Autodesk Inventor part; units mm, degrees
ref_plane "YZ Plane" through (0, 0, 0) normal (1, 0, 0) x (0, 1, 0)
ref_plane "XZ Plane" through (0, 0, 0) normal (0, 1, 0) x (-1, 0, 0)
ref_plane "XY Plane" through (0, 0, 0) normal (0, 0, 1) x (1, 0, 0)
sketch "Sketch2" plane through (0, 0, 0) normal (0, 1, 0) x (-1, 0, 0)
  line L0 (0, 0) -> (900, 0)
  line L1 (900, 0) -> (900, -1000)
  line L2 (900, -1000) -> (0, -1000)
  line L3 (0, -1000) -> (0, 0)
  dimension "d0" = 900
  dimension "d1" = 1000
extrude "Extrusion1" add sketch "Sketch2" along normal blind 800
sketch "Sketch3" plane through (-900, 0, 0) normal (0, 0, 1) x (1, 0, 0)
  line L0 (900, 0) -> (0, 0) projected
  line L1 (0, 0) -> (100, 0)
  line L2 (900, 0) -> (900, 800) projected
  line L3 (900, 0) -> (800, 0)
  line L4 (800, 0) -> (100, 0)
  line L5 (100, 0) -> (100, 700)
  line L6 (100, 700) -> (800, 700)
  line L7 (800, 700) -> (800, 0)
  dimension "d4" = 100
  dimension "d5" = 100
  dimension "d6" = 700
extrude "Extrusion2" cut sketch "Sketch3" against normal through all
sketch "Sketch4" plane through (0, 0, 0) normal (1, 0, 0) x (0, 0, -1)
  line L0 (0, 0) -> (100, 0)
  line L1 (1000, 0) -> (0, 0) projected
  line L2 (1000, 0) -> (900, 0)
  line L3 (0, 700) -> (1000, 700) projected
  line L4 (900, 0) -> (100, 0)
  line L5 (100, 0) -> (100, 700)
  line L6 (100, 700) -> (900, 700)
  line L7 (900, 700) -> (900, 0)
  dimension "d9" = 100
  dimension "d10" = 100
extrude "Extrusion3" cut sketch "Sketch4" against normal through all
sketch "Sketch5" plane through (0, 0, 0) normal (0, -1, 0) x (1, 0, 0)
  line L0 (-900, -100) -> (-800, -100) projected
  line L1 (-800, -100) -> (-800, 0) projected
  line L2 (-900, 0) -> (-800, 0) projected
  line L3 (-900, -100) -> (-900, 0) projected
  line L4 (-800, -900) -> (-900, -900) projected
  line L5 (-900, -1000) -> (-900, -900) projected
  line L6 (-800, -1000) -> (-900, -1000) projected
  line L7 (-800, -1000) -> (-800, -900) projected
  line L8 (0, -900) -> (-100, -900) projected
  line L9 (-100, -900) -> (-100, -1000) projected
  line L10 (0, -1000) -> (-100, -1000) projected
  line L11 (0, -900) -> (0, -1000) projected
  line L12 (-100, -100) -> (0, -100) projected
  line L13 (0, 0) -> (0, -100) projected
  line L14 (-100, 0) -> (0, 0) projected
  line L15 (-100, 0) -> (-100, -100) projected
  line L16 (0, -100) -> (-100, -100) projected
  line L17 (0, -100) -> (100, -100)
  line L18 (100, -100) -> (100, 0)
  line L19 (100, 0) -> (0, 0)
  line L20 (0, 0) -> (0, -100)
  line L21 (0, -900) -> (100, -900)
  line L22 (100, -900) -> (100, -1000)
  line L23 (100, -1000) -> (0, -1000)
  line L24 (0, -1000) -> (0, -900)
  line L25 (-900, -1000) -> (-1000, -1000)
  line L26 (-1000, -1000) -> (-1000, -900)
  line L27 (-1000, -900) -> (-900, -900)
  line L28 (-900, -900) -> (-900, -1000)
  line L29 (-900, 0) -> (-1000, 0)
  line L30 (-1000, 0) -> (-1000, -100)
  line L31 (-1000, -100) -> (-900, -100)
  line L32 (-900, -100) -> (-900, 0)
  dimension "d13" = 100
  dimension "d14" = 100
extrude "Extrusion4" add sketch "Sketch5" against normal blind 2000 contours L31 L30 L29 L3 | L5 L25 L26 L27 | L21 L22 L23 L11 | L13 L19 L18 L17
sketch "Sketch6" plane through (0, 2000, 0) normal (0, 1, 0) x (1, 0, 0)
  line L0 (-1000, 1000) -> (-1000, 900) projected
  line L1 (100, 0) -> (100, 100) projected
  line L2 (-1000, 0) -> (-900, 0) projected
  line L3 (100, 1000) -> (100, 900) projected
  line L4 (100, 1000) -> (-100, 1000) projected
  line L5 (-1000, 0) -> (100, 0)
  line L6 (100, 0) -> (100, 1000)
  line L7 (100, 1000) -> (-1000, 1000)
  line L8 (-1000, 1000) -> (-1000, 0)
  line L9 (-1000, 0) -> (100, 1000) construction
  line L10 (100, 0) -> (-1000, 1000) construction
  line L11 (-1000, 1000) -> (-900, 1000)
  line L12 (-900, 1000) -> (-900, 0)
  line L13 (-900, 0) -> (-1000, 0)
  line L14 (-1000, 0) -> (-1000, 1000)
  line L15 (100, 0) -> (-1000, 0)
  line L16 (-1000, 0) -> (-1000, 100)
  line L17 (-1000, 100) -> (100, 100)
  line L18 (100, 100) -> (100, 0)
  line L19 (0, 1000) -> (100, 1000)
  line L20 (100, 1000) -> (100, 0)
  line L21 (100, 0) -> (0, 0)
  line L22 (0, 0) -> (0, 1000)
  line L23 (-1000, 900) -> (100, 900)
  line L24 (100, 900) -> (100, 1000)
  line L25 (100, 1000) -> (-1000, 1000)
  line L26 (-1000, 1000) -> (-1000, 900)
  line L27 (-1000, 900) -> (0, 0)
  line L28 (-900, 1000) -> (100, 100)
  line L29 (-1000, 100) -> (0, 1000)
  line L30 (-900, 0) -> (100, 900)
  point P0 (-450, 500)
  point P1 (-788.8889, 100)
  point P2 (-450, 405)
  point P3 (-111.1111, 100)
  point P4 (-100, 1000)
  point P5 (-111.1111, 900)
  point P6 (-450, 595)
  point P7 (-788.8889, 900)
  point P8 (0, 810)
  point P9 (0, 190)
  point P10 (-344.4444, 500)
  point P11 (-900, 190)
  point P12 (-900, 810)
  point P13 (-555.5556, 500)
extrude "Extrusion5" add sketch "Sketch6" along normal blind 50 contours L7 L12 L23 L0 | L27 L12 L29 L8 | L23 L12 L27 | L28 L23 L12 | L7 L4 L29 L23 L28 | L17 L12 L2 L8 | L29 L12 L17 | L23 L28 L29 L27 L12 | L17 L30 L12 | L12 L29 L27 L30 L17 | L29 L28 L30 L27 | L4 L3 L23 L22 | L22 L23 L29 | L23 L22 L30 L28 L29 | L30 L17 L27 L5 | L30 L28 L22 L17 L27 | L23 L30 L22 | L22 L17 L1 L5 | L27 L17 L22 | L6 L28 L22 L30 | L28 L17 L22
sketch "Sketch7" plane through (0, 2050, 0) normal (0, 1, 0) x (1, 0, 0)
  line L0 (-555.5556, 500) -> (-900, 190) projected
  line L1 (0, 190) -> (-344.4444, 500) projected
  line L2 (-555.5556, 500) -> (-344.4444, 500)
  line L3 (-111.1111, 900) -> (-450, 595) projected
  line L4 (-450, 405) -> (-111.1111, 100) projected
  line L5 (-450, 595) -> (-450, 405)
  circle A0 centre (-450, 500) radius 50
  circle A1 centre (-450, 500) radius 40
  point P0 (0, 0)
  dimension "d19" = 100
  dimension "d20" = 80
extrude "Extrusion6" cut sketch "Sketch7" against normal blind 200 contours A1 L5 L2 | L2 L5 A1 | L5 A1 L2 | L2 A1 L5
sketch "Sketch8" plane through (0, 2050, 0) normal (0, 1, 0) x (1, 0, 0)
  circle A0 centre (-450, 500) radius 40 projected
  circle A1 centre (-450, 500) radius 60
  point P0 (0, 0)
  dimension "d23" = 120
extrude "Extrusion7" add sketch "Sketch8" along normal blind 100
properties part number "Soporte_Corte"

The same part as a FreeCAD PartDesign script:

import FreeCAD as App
import Part
import Sketcher

V = App.Vector
Q = App.Units.Quantity

doc = App.newDocument("Part")
body = doc.addObject("PartDesign::Body", "Body")

sketch1 = body.newObject("Sketcher::SketchObject", "Sketch")
sketch1.AttachmentSupport = (doc.getObject("XZ_Plane"), [""])
sketch1.MapMode = "FlatFace"
sketch1.addGeometry([
    Part.LineSegment(V(-900, 0, 0), V(0, 0, 0)),
    Part.LineSegment(V(0, 0, 0), V(0, -1000, 0)),
    Part.LineSegment(V(0, -1000, 0), V(-900, -1000, 0)),
    Part.LineSegment(V(-900, -1000, 0), V(-900, 0, 0)),
], False)
sketch1.addConstraint([
    Sketcher.Constraint("Coincident", 0, 2, 1, 1),
    Sketcher.Constraint("Coincident", 1, 2, 2, 1),
    Sketcher.Constraint("Coincident", 2, 2, 3, 1),
    Sketcher.Constraint("Coincident", 3, 2, 0, 1),
    Sketcher.Constraint("Horizontal", 0),
    Sketcher.Constraint("Vertical", 1),
    Sketcher.Constraint("Horizontal", 2),
    Sketcher.Constraint("Vertical", 3),
    Sketcher.Constraint("Coincident", 0, 2, -1, 1),
    Sketcher.Constraint("DistanceX", 0, 1, 0, 2, Q("900 mm")),
    Sketcher.Constraint("DistanceY", 1, 2, 1, 1, Q("1000 mm")),
])
pad1 = body.newObject("PartDesign::Pad", "Pad")
pad1.Profile = sketch1
pad1.Length = 800
pad1.Reversed = True

sketch2 = body.newObject("Sketcher::SketchObject", "Sketch001")
sketch2.AttachmentSupport = (doc.getObject("XY_Plane"), [""])
sketch2.MapMode = "FlatFace"
sketch2.addGeometry([
    Part.LineSegment(V(-800, 0, 0), V(-100, 0, 0)),
    Part.LineSegment(V(-100, 0, 0), V(-100, 700, 0)),
    Part.LineSegment(V(-100, 700, 0), V(-800, 700, 0)),
    Part.LineSegment(V(-800, 700, 0), V(-800, 0, 0)),
], False)
sketch2.addConstraint([
    Sketcher.Constraint("Coincident", 0, 2, 1, 1),
    Sketcher.Constraint("Coincident", 1, 2, 2, 1),
    Sketcher.Constraint("Coincident", 2, 2, 3, 1),
    Sketcher.Constraint("Coincident", 3, 2, 0, 1),
    Sketcher.Constraint("Horizontal", 0),
    Sketcher.Constraint("Vertical", 1),
    Sketcher.Constraint("Horizontal", 2),
    Sketcher.Constraint("Vertical", 3),
    Sketcher.Constraint("PointOnObject", 0, 2, -1),
    Sketcher.Constraint("Equal", 2, 1),
    Sketcher.Constraint("DistanceX", 0, 1, 0, 2, Q("700 mm")),
    Sketcher.Constraint("DistanceX", 0, 2, -1, 1, Q("100 mm")),
])
pocket1 = body.newObject("PartDesign::Pocket", "Pocket")
pocket1.Profile = sketch2
pocket1.Type = "ThroughAll"

sketch3 = body.newObject("Sketcher::SketchObject", "Sketch002")
sketch3.AttachmentSupport = (doc.getObject("YZ_Plane"), [""])
sketch3.MapMode = "FlatFace"
sketch3.addGeometry([
    Part.LineSegment(V(0, -100, 0), V(0, -900, 0)),
    Part.LineSegment(V(0, -900, 0), V(700, -900, 0)),
    Part.LineSegment(V(700, -900, 0), V(700, -100, 0)),
    Part.LineSegment(V(700, -100, 0), V(0, -100, 0)),
], False)
sketch3.addConstraint([
    Sketcher.Constraint("Coincident", 0, 2, 1, 1),
    Sketcher.Constraint("Coincident", 1, 2, 2, 1),
    Sketcher.Constraint("Coincident", 2, 2, 3, 1),
    Sketcher.Constraint("Coincident", 3, 2, 0, 1),
    Sketcher.Constraint("Vertical", 0),
    Sketcher.Constraint("Horizontal", 1),
    Sketcher.Constraint("Vertical", 2),
    Sketcher.Constraint("Horizontal", 3),
    Sketcher.Constraint("PointOnObject", 0, 2, -2),
    Sketcher.Constraint("DistanceY", 2, 2, -1, 1, Q("100 mm")),
    Sketcher.Constraint("DistanceX", 1, 1, 1, 2, Q("700 mm")),
    Sketcher.Constraint("DistanceY", 0, 2, 0, 1, Q("800 mm")),
])
pocket2 = body.newObject("PartDesign::Pocket", "Pocket001")
pocket2.Profile = sketch3
pocket2.Type = "ThroughAll"

sketch4 = body.newObject("Sketcher::SketchObject", "Sketch003")
sketch4.AttachmentSupport = (doc.getObject("XZ_Plane"), [""])
sketch4.MapMode = "FlatFace"
sketch4.addGeometry([
    Part.LineSegment(V(-1000, -100, 0), V(-900, -100, 0)),
    Part.LineSegment(V(-900, -100, 0), V(-900, 0, 0)),
    Part.LineSegment(V(-900, 0, 0), V(-1000, 0, 0)),
    Part.LineSegment(V(-1000, 0, 0), V(-1000, -100, 0)),
    Part.LineSegment(V(-900, -1000, 0), V(-900, -900, 0)),
    Part.LineSegment(V(-900, -900, 0), V(-1000, -900, 0)),
    Part.LineSegment(V(-1000, -900, 0), V(-1000, -1000, 0)),
    Part.LineSegment(V(-1000, -1000, 0), V(-900, -1000, 0)),
    Part.LineSegment(V(100, -900, 0), V(0, -900, 0)),
    Part.LineSegment(V(0, -900, 0), V(0, -1000, 0)),
    Part.LineSegment(V(0, -1000, 0), V(100, -1000, 0)),
    Part.LineSegment(V(100, -1000, 0), V(100, -900, 0)),
    Part.LineSegment(V(0, 0, 0), V(0, -100, 0)),
    Part.LineSegment(V(0, -100, 0), V(100, -100, 0)),
    Part.LineSegment(V(100, -100, 0), V(100, 0, 0)),
    Part.LineSegment(V(100, 0, 0), V(0, 0, 0)),
], False)
sketch4.addConstraint([
    Sketcher.Constraint("Coincident", 0, 2, 1, 1),
    Sketcher.Constraint("Coincident", 1, 2, 2, 1),
    Sketcher.Constraint("Coincident", 2, 2, 3, 1),
    Sketcher.Constraint("Coincident", 3, 2, 0, 1),
    Sketcher.Constraint("Coincident", 4, 2, 5, 1),
    Sketcher.Constraint("Coincident", 5, 2, 6, 1),
    Sketcher.Constraint("Coincident", 6, 2, 7, 1),
    Sketcher.Constraint("Coincident", 7, 2, 4, 1),
    Sketcher.Constraint("Coincident", 8, 2, 9, 1),
    Sketcher.Constraint("Coincident", 9, 2, 10, 1),
    Sketcher.Constraint("Coincident", 10, 2, 11, 1),
    Sketcher.Constraint("Coincident", 11, 2, 8, 1),
    Sketcher.Constraint("Coincident", 12, 2, 13, 1),
    Sketcher.Constraint("Coincident", 13, 2, 14, 1),
    Sketcher.Constraint("Coincident", 14, 2, 15, 1),
    Sketcher.Constraint("Coincident", 15, 2, 12, 1),
    Sketcher.Constraint("Horizontal", 0),
    Sketcher.Constraint("Vertical", 1),
    Sketcher.Constraint("Horizontal", 2),
    Sketcher.Constraint("Vertical", 3),
    Sketcher.Constraint("Vertical", 4),
    Sketcher.Constraint("Horizontal", 5),
    Sketcher.Constraint("Vertical", 6),
    Sketcher.Constraint("Horizontal", 7),
    Sketcher.Constraint("Horizontal", 8),
    Sketcher.Constraint("Vertical", 9),
    Sketcher.Constraint("Horizontal", 10),
    Sketcher.Constraint("Vertical", 11),
    Sketcher.Constraint("Vertical", 12),
    Sketcher.Constraint("Horizontal", 13),
    Sketcher.Constraint("Vertical", 14),
    Sketcher.Constraint("Horizontal", 15),
    Sketcher.Constraint("Coincident", 15, 2, -1, 1),
    Sketcher.Constraint("PointOnObject", 1, 2, -1),
    Sketcher.Constraint("PointOnObject", 8, 2, -2),
    Sketcher.Constraint("Horizontal", 5, 2, 8, 2),
    Sketcher.Constraint("Horizontal", 7, 2, 9, 2),
    Sketcher.Constraint("Horizontal", 3, 2, 12, 2),
    Sketcher.Constraint("Vertical", 1, 2, 4, 2),
    Sketcher.Constraint("Vertical", 3, 2, 5, 2),
    Sketcher.Constraint("Vertical", 11, 2, 13, 2),
    Sketcher.Constraint("Equal", 7, 8),
    Sketcher.Constraint("Equal", 15, 1),
    Sketcher.Constraint("Equal", 3, 4),
    Sketcher.Constraint("DistanceX", 0, 1, 0, 2, Q("100 mm")),
    Sketcher.Constraint("DistanceX", 0, 2, -1, 1, Q("900 mm")),
    Sketcher.Constraint("DistanceY", 4, 2, -1, 1, Q("900 mm")),
])
pad2 = body.newObject("PartDesign::Pad", "Pad001")
pad2.Profile = sketch4
pad2.Length = 2000
pad2.Reversed = True

sketch5 = body.newObject("Sketcher::SketchObject", "Sketch004")
sketch5.AttachmentSupport = (doc.getObject("XZ_Plane"), [""])
sketch5.MapMode = "FlatFace"
sketch5.AttachmentOffset = App.Placement(V(0, 0, -2000), App.Rotation())
sketch5.addGeometry([
    Part.LineSegment(V(-1000, -1000, 0), V(-1000, 0, 0)),
    Part.LineSegment(V(-1000, 0, 0), V(100, 0, 0)),
    Part.LineSegment(V(100, 0, 0), V(100, -1000, 0)),
    Part.LineSegment(V(100, -1000, 0), V(-1000, -1000, 0)),
    Part.LineSegment(V(-788.888889, -900, 0), V(-111.111111, -900, 0)),
    Part.LineSegment(V(-111.111111, -900, 0), V(-450, -595, 0)),
    Part.LineSegment(V(-450, -595, 0), V(-788.888889, -900, 0)),
    Part.LineSegment(V(-900, -810, 0), V(-555.555556, -500, 0)),
    Part.LineSegment(V(-555.555556, -500, 0), V(-900, -190, 0)),
    Part.LineSegment(V(-900, -190, 0), V(-900, -810, 0)),
    Part.LineSegment(V(-344.444444, -500, 0), V(0, -810, 0)),
    Part.LineSegment(V(0, -810, 0), V(0, -190, 0)),
    Part.LineSegment(V(0, -190, 0), V(-344.444444, -500, 0)),
    Part.LineSegment(V(-788.888889, -100, 0), V(-450, -405, 0)),
    Part.LineSegment(V(-450, -405, 0), V(-111.111111, -100, 0)),
    Part.LineSegment(V(-111.111111, -100, 0), V(-788.888889, -100, 0)),
], False)
sketch5.addConstraint([
    Sketcher.Constraint("Coincident", 0, 2, 1, 1),
    Sketcher.Constraint("Coincident", 1, 2, 2, 1),
    Sketcher.Constraint("Coincident", 2, 2, 3, 1),
    Sketcher.Constraint("Coincident", 3, 2, 0, 1),
    Sketcher.Constraint("Coincident", 4, 2, 5, 1),
    Sketcher.Constraint("Coincident", 5, 2, 6, 1),
    Sketcher.Constraint("Coincident", 6, 2, 4, 1),
    Sketcher.Constraint("Coincident", 7, 2, 8, 1),
    Sketcher.Constraint("Coincident", 8, 2, 9, 1),
    Sketcher.Constraint("Coincident", 9, 2, 7, 1),
    Sketcher.Constraint("Coincident", 10, 2, 11, 1),
    Sketcher.Constraint("Coincident", 11, 2, 12, 1),
    Sketcher.Constraint("Coincident", 12, 2, 10, 1),
    Sketcher.Constraint("Coincident", 13, 2, 14, 1),
    Sketcher.Constraint("Coincident", 14, 2, 15, 1),
    Sketcher.Constraint("Coincident", 15, 2, 13, 1),
    Sketcher.Constraint("Vertical", 0),
    Sketcher.Constraint("Horizontal", 1),
    Sketcher.Constraint("Vertical", 2),
    Sketcher.Constraint("Horizontal", 3),
    Sketcher.Constraint("Horizontal", 4),
    Sketcher.Constraint("Vertical", 9),
    Sketcher.Constraint("Vertical", 11),
    Sketcher.Constraint("Horizontal", 15),
    Sketcher.Constraint("PointOnObject", 0, 2, -1),
    Sketcher.Constraint("PointOnObject", 10, 2, -2),
    Sketcher.Constraint("Parallel", 6, 7),
    Sketcher.Constraint("Parallel", 5, 8),
    Sketcher.Constraint("Parallel", 8, 10),
    Sketcher.Constraint("Parallel", 7, 12),
    Sketcher.Constraint("Parallel", 10, 13),
    Sketcher.Constraint("Parallel", 12, 14),
    Sketcher.Constraint("Horizontal", 9, 2, 10, 2),
    Sketcher.Constraint("Horizontal", 8, 2, 11, 2),
    Sketcher.Constraint("Horizontal", 7, 2, 12, 2),
    Sketcher.Constraint("Vertical", 5, 2, 13, 2),
    Sketcher.Constraint("Vertical", 4, 2, 14, 2),
    Sketcher.Constraint("DistanceX", 1, 1, 1, 2, Q("1100 mm")),
    Sketcher.Constraint("DistanceY", 0, 1, 0, 2, Q("1000 mm")),
    Sketcher.Constraint("DistanceY", 9, 2, 9, 1, Q("620 mm")),
    Sketcher.Constraint("DistanceX", 0, 2, -1, 1, Q("1000 mm")),
    Sketcher.Constraint("DistanceY", 4, 2, -1, 1, Q("900 mm")),
    Sketcher.Constraint("DistanceX", 5, 2, -1, 1, Q("450 mm")),
    Sketcher.Constraint("DistanceY", 5, 2, -1, 1, Q("595 mm")),
    Sketcher.Constraint("DistanceY", 7, 2, -1, 1, Q("500 mm")),
    Sketcher.Constraint("DistanceX", 8, 2, -1, 1, Q("900 mm")),
    Sketcher.Constraint("DistanceY", 13, 2, -1, 1, Q("405 mm")),
    Sketcher.Constraint("DistanceX", 4, 1, 4, 2, Q("677.7778 mm")),
])
pad3 = body.newObject("PartDesign::Pad", "Pad002")
pad3.Profile = sketch5
pad3.Length = 50
pad3.Reversed = True

sketch6 = body.newObject("Sketcher::SketchObject", "Sketch005")
sketch6.AttachmentSupport = (doc.getObject("XZ_Plane"), [""])
sketch6.MapMode = "FlatFace"
sketch6.AttachmentOffset = App.Placement(V(0, 0, -2050), App.Rotation())
sketch6.addGeometry(Part.Circle(V(-450, -500, 0), V(0, 0, 1), 40), False)
sketch6.addConstraint([
    Sketcher.Constraint("Diameter", 0, Q("80 mm")),
    Sketcher.Constraint("DistanceX", 0, 3, -1, 1, Q("450 mm")),
    Sketcher.Constraint("DistanceY", 0, 3, -1, 1, Q("500 mm")),
])
pocket3 = body.newObject("PartDesign::Pocket", "Pocket002")
pocket3.Profile = sketch6
pocket3.Length = 200
pocket3.Reversed = True

sketch7 = body.newObject("Sketcher::SketchObject", "Sketch006")
sketch7.AttachmentSupport = (doc.getObject("XZ_Plane"), [""])
sketch7.MapMode = "FlatFace"
sketch7.AttachmentOffset = App.Placement(V(0, 0, -2050), App.Rotation())
sketch7.addGeometry([
    Part.Circle(V(-450, -500, 0), V(0, 0, 1), 60),
    Part.Circle(V(-450, -500, 0), V(0, 0, 1), 40),
], False)
sketch7.addConstraint([
    Sketcher.Constraint("Coincident", 1, 3, 0, 3),
    Sketcher.Constraint("Diameter", 0, Q("120 mm")),
    Sketcher.Constraint("Diameter", 1, Q("80 mm")),
    Sketcher.Constraint("DistanceX", 0, 3, -1, 1, Q("450 mm")),
    Sketcher.Constraint("DistanceY", 0, 3, -1, 1, Q("500 mm")),
])
pad4 = body.newObject("PartDesign::Pad", "Pad003")
pad4.Profile = sketch7
pad4.Length = 100
pad4.Reversed = True

doc.recompute()
